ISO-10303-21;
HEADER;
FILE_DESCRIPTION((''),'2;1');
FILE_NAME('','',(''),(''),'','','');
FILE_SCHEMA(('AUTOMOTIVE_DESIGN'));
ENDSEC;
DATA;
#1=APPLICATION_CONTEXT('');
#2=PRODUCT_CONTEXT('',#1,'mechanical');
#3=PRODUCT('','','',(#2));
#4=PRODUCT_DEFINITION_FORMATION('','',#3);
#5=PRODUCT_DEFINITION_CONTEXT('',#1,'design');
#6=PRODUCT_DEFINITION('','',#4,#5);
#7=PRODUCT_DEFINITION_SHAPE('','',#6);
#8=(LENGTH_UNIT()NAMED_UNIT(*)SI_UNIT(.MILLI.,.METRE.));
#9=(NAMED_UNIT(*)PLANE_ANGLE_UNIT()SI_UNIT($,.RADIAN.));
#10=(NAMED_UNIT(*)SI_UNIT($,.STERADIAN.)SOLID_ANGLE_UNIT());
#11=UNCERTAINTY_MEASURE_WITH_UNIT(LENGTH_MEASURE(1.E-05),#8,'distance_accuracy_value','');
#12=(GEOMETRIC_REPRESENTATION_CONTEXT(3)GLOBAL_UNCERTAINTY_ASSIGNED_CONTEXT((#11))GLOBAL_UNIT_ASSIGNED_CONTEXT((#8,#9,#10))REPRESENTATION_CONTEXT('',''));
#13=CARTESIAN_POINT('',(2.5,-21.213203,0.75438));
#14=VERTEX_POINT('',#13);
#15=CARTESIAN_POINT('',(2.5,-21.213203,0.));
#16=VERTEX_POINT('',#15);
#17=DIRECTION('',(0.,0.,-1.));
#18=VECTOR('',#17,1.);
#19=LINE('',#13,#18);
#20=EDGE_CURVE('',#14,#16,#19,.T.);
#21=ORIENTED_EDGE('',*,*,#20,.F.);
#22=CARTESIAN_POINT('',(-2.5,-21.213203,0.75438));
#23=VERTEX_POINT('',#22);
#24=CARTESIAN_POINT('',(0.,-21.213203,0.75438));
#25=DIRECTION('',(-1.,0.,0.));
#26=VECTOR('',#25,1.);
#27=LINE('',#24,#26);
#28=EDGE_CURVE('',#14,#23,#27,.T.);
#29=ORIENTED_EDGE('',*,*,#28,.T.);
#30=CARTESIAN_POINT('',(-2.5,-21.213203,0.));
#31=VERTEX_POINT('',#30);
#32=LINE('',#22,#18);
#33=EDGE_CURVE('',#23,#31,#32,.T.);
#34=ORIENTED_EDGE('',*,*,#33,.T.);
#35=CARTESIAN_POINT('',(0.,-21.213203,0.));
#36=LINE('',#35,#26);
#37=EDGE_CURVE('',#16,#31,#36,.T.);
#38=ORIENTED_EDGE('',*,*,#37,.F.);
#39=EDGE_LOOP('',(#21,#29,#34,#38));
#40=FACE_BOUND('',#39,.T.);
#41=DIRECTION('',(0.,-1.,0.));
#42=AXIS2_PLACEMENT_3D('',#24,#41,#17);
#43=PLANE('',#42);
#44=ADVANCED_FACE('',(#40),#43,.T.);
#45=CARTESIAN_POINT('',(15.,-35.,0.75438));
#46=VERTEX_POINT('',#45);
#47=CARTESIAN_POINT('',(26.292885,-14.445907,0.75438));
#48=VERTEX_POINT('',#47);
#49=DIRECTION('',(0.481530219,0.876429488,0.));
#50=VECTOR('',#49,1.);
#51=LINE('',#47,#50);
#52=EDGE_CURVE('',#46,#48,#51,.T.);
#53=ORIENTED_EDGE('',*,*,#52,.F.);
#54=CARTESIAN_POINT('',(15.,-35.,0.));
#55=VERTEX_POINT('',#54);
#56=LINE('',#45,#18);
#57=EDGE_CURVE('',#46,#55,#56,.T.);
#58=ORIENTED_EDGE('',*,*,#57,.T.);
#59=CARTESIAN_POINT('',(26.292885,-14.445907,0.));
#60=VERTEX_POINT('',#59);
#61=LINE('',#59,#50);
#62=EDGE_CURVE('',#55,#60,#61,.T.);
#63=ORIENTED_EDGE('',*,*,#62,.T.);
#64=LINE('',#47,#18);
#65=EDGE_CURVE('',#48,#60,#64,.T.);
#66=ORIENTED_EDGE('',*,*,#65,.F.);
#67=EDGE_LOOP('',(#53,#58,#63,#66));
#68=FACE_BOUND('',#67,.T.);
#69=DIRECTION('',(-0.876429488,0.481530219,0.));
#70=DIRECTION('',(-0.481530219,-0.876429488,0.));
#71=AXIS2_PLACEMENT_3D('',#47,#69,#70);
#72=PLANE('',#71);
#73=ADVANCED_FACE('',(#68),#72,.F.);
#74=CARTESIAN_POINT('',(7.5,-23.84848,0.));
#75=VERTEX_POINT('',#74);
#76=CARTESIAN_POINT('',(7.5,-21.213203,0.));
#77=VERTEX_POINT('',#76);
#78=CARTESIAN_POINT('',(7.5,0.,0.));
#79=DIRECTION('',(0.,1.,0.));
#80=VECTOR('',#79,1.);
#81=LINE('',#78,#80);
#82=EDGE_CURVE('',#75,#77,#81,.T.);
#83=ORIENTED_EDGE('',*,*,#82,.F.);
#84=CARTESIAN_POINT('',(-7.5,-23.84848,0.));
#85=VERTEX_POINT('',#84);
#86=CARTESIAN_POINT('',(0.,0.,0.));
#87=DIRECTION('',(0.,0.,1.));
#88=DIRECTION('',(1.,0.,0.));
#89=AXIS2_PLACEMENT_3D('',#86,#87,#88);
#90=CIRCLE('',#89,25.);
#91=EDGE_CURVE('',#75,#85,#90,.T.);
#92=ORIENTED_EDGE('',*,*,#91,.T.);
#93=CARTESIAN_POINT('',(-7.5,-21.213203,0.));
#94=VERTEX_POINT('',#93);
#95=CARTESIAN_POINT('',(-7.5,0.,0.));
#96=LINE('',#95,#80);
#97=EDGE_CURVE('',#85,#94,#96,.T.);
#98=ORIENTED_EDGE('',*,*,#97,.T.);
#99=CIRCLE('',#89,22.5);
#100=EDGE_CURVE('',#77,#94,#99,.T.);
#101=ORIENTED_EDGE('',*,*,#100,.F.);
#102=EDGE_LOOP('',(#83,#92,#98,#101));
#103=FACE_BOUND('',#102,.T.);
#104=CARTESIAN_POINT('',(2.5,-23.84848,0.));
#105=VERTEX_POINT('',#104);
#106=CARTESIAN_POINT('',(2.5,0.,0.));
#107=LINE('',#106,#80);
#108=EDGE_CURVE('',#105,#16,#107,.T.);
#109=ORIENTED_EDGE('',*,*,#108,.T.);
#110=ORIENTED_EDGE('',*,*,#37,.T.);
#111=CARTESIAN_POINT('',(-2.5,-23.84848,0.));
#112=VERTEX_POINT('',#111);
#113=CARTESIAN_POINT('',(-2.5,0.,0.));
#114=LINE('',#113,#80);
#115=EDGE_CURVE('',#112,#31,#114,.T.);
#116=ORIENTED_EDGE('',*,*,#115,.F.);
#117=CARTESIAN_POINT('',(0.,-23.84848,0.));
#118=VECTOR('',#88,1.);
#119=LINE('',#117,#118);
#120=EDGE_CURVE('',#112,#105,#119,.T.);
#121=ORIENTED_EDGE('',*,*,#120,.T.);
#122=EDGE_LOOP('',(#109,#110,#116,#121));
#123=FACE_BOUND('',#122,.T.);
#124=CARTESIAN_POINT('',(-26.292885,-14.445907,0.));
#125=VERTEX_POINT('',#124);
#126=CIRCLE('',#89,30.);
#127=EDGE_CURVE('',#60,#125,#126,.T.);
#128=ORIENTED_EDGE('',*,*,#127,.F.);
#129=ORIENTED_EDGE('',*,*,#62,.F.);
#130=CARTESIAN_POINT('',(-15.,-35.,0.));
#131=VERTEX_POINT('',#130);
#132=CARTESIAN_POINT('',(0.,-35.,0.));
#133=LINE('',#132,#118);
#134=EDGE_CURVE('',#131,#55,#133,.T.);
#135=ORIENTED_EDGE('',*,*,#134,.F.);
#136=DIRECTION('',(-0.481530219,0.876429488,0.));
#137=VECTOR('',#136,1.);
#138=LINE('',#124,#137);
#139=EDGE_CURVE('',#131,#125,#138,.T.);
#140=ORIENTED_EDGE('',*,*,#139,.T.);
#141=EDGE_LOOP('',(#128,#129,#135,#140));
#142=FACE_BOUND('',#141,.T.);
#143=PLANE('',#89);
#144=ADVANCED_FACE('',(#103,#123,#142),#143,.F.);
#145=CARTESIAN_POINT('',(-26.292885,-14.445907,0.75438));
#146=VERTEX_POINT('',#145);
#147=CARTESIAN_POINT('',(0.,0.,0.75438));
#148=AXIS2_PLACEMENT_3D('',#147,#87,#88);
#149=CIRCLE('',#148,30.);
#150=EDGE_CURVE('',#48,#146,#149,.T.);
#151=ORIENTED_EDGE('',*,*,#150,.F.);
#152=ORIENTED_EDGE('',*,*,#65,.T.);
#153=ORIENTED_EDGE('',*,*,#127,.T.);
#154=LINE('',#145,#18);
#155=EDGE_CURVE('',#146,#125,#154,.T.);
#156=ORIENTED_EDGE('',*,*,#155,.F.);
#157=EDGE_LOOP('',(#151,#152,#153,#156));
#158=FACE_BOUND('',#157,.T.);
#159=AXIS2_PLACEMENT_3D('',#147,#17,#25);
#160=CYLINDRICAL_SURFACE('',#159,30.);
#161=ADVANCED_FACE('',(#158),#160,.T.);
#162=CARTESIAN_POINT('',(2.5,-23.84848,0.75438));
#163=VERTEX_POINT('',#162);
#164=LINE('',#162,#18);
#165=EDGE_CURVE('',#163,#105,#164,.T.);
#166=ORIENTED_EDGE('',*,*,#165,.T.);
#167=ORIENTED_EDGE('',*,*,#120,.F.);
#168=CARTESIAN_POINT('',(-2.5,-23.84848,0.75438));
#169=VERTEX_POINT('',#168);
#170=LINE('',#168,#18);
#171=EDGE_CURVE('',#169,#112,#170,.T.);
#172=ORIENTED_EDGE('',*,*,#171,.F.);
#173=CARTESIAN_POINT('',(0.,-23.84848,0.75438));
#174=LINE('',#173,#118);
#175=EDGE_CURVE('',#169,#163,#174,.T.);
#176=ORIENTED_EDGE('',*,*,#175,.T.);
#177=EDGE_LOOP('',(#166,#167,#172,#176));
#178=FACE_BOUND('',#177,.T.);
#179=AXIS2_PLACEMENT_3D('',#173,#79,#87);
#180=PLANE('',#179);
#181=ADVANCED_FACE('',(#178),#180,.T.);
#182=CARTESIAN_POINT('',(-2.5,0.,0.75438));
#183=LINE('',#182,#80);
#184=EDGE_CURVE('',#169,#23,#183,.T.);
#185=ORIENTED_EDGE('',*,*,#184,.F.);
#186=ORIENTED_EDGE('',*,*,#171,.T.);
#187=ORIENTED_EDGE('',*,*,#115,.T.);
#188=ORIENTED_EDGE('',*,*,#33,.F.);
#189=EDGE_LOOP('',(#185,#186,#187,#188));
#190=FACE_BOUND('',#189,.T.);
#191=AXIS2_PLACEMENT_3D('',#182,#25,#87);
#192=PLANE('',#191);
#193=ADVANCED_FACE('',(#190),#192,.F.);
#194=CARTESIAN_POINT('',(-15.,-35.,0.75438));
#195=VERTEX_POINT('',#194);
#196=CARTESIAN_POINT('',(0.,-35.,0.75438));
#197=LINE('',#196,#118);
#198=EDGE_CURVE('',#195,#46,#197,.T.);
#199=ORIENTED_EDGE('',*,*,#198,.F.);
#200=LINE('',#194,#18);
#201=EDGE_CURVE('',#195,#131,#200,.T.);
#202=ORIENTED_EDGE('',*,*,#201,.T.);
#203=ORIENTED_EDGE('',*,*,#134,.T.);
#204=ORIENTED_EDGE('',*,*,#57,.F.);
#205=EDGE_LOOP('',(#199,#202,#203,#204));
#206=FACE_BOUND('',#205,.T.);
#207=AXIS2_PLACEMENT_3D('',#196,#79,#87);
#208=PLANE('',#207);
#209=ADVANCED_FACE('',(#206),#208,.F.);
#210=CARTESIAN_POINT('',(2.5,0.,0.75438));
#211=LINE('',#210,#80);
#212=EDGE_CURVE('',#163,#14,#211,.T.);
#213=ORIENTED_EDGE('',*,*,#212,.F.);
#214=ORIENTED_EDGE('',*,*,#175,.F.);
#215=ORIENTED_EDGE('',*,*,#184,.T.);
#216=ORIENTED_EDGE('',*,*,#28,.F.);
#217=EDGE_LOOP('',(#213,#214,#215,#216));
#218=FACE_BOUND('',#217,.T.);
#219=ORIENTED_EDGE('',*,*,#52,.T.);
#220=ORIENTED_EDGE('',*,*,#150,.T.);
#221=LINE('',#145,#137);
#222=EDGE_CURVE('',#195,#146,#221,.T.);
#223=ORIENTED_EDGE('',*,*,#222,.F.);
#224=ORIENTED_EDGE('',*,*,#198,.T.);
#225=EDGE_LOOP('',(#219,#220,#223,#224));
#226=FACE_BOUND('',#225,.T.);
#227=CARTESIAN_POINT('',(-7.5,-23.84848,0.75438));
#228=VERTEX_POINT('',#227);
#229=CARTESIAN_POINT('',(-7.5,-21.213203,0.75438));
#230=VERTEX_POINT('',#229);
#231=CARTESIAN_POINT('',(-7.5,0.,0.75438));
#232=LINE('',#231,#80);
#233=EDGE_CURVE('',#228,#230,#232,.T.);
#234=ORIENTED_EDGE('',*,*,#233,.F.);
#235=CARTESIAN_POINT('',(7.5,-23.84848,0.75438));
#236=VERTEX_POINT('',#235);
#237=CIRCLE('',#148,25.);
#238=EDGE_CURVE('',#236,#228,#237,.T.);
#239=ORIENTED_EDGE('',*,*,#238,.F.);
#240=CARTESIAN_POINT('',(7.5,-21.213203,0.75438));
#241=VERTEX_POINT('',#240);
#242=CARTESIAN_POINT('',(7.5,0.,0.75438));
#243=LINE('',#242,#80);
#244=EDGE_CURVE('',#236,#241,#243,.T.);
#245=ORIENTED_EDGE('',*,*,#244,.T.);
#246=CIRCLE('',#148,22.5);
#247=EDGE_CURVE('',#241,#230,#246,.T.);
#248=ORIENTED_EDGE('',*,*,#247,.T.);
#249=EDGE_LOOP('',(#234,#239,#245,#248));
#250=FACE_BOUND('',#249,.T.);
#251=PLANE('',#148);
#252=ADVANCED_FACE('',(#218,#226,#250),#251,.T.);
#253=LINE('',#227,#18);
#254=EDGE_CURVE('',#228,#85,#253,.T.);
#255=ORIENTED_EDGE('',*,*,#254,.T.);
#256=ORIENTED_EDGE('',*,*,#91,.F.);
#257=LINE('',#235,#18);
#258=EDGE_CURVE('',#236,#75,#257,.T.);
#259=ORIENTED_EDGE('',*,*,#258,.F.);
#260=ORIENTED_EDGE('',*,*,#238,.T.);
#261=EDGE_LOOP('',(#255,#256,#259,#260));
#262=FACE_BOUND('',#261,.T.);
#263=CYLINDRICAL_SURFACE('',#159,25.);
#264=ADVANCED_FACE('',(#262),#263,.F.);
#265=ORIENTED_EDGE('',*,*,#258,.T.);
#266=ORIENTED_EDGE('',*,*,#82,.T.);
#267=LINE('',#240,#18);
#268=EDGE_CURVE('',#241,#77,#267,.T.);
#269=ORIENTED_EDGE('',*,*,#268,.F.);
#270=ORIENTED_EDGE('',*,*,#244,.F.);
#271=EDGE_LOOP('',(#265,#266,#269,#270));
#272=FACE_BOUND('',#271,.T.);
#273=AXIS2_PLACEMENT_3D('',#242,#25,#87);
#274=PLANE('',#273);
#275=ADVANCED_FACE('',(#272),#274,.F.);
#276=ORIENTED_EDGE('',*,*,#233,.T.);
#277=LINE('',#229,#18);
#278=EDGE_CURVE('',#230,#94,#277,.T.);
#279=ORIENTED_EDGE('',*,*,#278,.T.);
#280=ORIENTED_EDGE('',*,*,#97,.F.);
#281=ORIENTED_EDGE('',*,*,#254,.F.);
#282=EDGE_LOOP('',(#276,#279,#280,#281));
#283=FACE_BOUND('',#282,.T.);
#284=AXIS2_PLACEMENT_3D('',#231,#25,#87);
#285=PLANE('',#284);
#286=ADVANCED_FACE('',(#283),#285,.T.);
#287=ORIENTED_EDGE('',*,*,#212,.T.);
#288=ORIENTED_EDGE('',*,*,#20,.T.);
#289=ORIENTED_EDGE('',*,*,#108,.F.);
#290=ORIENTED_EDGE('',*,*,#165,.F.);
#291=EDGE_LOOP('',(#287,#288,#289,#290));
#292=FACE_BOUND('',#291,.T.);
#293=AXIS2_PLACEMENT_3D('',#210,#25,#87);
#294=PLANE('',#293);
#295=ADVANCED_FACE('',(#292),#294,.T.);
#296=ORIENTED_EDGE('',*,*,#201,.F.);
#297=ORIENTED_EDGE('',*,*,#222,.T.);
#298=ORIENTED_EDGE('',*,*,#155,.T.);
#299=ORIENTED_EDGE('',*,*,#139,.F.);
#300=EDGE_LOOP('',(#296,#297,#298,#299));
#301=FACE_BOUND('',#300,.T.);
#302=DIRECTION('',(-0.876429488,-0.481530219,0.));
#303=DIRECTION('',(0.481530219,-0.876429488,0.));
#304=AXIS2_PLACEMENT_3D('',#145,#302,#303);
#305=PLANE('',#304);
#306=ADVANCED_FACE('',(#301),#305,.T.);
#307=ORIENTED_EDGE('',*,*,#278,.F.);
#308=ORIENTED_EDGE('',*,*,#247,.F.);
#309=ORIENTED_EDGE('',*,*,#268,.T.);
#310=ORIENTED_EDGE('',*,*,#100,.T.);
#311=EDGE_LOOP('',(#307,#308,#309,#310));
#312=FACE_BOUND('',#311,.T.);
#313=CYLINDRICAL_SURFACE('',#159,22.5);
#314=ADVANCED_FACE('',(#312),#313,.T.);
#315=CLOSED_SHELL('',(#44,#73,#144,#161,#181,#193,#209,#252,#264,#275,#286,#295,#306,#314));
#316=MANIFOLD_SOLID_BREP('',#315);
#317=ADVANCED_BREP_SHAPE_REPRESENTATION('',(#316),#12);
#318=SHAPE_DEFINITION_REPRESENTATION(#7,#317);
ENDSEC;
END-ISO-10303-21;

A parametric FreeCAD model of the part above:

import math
import FreeCAD as App
import Part
import Sketcher

V = App.Vector
Q = App.Units.Quantity

doc = App.newDocument("Part")
body = doc.addObject("PartDesign::Body", "Body")

sketch1 = body.newObject("Sketcher::SketchObject", "Sketch")
sketch1.AttachmentSupport = (doc.getObject("XY_Plane"), [""])
sketch1.MapMode = "FlatFace"
sketch1.addGeometry([
    Part.LineSegment(V(-26.3, -14.4, 0), V(-15, -35, 0)),
    Part.LineSegment(V(-15, -35, 0), V(15, -35, 0)),
    Part.LineSegment(V(15, -35, 0), V(26.3, -14.4, 0)),
    Part.ArcOfCircle(Part.Circle(V(0, 0, 0), V(0, 0, 1), 30), math.radians(-29), math.radians(209)),
    Part.LineSegment(V(2.5, -21.2, 0), V(2.5, -23.8, 0)),
    Part.LineSegment(V(2.5, -23.8, 0), V(-2.5, -23.8, 0)),
    Part.LineSegment(V(-2.5, -23.8, 0), V(-2.5, -21.2, 0)),
    Part.LineSegment(V(-2.5, -21.2, 0), V(2.5, -21.2, 0)),
    Part.ArcOfCircle(Part.Circle(V(0, 0, 0), V(0, 0, 1), 22.5), math.radians(-71), math.radians(251)),
    Part.LineSegment(V(-7.5, -21.2, 0), V(-7.5, -23.8, 0)),
    Part.ArcOfCircle(Part.Circle(V(0, 0, 0), V(0, 0, 1), 25), math.radians(-73), math.radians(253)),
    Part.LineSegment(V(7.5, -23.8, 0), V(7.5, -21.2, 0)),
], False)
sketch1.addConstraint([
    Sketcher.Constraint("Coincident", 0, 2, 1, 1),
    Sketcher.Constraint("Coincident", 1, 2, 2, 1),
    Sketcher.Constraint("Tangent", 2, 2, 3, 1),
    Sketcher.Constraint("Tangent", 3, 2, 0, 1),
    Sketcher.Constraint("Coincident", 4, 2, 5, 1),
    Sketcher.Constraint("Coincident", 5, 2, 6, 1),
    Sketcher.Constraint("Coincident", 6, 2, 7, 1),
    Sketcher.Constraint("Coincident", 7, 2, 4, 1),
    Sketcher.Constraint("Coincident", 8, 2, 9, 1),
    Sketcher.Constraint("Coincident", 9, 2, 10, 2),
    Sketcher.Constraint("Coincident", 10, 1, 11, 1),
    Sketcher.Constraint("Coincident", 11, 2, 8, 1),
    Sketcher.Constraint("Horizontal", 1),
    Sketcher.Constraint("Vertical", 4),
    Sketcher.Constraint("Horizontal", 5),
    Sketcher.Constraint("Vertical", 6),
    Sketcher.Constraint("Horizontal", 7),
    Sketcher.Constraint("Vertical", 9),
    Sketcher.Constraint("Vertical", 11),
    Sketcher.Constraint("Coincident", 3, 3, -1, 1),
    Sketcher.Constraint("Coincident", 8, 3, -1, 1),
    Sketcher.Constraint("Coincident", 10, 3, -1, 1),
    Sketcher.Constraint("Horizontal", 2, 2, 3, 2),
    Sketcher.Constraint("Horizontal", 7, 2, 8, 2),
    Sketcher.Constraint("Horizontal", 5, 2, 9, 2),
    Sketcher.Constraint("Horizontal", 9, 2, 10, 1),
    Sketcher.Constraint("Radius", 3, Q("30 mm")),
    Sketcher.Constraint("Radius", 10, Q("25 mm")),
    Sketcher.Constraint("Radius", 8, Q("22.5 mm")),
    Sketcher.Constraint("DistanceX", 1, 1, 1, 2, Q("30 mm")),
    Sketcher.Constraint("DistanceX", 5, 2, 5, 1, Q("5 mm")),
    Sketcher.Constraint("DistanceY", 0, 2, -1, 1, Q("35 mm")),
    Sketcher.Constraint("DistanceX", 8, 2, 6, 2, Q("5 mm")),
    Sketcher.Constraint("DistanceX", 4, 2, 10, 1, Q("5 mm")),
])
pad1 = body.newObject("PartDesign::Pad", "Pad")
pad1.Profile = sketch1
pad1.Length = 0.75438

doc.recompute()
